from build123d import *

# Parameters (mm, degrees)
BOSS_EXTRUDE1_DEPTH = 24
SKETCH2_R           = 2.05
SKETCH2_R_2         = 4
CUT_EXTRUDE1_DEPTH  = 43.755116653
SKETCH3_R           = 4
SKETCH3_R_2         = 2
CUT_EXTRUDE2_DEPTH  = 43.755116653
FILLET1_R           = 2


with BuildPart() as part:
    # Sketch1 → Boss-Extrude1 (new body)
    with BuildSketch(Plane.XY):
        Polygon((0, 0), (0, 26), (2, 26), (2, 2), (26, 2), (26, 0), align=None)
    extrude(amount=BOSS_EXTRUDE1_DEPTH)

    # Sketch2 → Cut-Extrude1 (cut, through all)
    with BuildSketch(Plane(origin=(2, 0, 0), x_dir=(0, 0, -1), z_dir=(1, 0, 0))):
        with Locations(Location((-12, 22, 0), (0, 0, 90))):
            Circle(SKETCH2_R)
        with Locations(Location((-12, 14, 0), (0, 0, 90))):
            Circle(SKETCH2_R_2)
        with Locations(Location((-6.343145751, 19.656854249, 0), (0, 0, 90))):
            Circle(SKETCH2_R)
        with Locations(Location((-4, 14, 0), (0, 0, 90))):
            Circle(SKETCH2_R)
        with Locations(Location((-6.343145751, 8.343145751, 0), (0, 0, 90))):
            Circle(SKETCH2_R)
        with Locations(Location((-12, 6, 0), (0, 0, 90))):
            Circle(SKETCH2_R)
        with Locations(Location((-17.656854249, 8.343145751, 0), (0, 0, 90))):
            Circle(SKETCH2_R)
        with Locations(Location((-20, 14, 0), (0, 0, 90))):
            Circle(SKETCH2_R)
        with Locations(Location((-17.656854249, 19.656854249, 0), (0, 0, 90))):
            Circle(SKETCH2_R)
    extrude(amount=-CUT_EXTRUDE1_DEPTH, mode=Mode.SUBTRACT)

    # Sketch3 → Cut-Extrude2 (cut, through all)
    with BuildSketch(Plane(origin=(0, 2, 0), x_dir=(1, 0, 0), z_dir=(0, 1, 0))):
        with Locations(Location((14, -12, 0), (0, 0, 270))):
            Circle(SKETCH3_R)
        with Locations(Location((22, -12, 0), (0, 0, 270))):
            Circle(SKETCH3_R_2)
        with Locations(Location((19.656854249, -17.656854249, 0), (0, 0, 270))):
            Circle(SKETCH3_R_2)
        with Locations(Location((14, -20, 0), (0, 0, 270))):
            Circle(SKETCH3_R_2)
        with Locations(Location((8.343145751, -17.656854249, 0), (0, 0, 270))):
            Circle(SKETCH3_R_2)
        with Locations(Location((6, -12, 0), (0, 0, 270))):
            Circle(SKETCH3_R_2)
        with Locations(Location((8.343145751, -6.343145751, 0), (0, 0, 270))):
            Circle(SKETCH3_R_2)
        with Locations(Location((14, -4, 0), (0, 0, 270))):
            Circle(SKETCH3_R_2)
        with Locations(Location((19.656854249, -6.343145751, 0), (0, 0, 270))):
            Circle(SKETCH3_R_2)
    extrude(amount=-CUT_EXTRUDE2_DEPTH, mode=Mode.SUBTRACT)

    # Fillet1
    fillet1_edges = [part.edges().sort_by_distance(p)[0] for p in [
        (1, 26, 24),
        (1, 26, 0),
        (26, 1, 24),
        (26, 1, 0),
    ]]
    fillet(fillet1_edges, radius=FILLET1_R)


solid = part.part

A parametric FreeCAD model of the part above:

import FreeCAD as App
import Part
import Sketcher


def edges_at(feature, points):
    """Names of the edges that pass closest to the given points."""
    edges = feature.Shape.Edges
    near = lambda p: min(range(len(edges)), key=lambda i: edges[i].distToShape(Part.Vertex(*p))[0])
    return sorted({f"Edge{near(p) + 1}" for p in points})

doc = App.newDocument("Part")
body = doc.addObject("PartDesign::Body", "Body")

sketch1 = body.newObject("Sketcher::SketchObject", "Sketch")
sketch1.AttachmentSupport = (doc.getObject("XY_Plane"), [""])
sketch1.MapMode = "FlatFace"
sketch1.addGeometry(Part.LineSegment(App.Vector(0, 26, 0), App.Vector(0, 0, 0)), False)
sketch1.addGeometry(Part.LineSegment(App.Vector(0, 0, 0), App.Vector(26, 0, 0)), False)
sketch1.addGeometry(Part.LineSegment(App.Vector(26, 0, 0), App.Vector(26, 2, 0)), False)
sketch1.addGeometry(Part.LineSegment(App.Vector(26, 2, 0), App.Vector(2, 2, 0)), False)
sketch1.addGeometry(Part.LineSegment(App.Vector(2, 2, 0), App.Vector(2, 26, 0)), False)
sketch1.addGeometry(Part.LineSegment(App.Vector(2, 26, 0), App.Vector(0, 26, 0)), False)
sketch1.addConstraint(Sketcher.Constraint("Coincident", 0, 2, 1, 1))
sketch1.addConstraint(Sketcher.Constraint("Coincident", 1, 2, 2, 1))
sketch1.addConstraint(Sketcher.Constraint("Coincident", 2, 2, 3, 1))
sketch1.addConstraint(Sketcher.Constraint("Coincident", 3, 2, 4, 1))
sketch1.addConstraint(Sketcher.Constraint("Coincident", 4, 2, 5, 1))
sketch1.addConstraint(Sketcher.Constraint("Coincident", 5, 2, 0, 1))
sketch1.addConstraint(Sketcher.Constraint("Vertical", 0))
sketch1.addConstraint(Sketcher.Constraint("Horizontal", 1))
sketch1.addConstraint(Sketcher.Constraint("Vertical", 2))
sketch1.addConstraint(Sketcher.Constraint("Horizontal", 3))
sketch1.addConstraint(Sketcher.Constraint("Vertical", 4))
sketch1.addConstraint(Sketcher.Constraint("Horizontal", 5))
sketch1.addConstraint(Sketcher.Constraint("Coincident", 0, 2, -1, 1))
sketch1.addConstraint(Sketcher.Constraint("Equal", 1, 0))
sketch1.addConstraint(Sketcher.Constraint("Equal", 5, 2))
sketch1.addConstraint(Sketcher.Constraint("DistanceX", 1, 1, 1, 2, 26.0))
sketch1.addConstraint(Sketcher.Constraint("DistanceX", 3, 2, 3, 1, 24.0))
pad1 = body.newObject("PartDesign::Pad", "Pad")
pad1.Profile = sketch1
pad1.Length = 24

sketch2 = body.newObject("Sketcher::SketchObject", "Sketch001")
sketch2.AttachmentSupport = (doc.getObject("YZ_Plane"), [""])
sketch2.MapMode = "FlatFace"
sketch2.AttachmentOffset = App.Placement(App.Vector(0, 0, 2), App.Rotation())
sketch2.addGeometry(Part.Circle(App.Vector(22, 12, 0), App.Vector(0, 0, 1), 2.05), False)
sketch2.addGeometry(Part.Circle(App.Vector(14, 12, 0), App.Vector(0, 0, 1), 4), False)
sketch2.addGeometry(Part.Circle(App.Vector(19.656854, 6.343146, 0), App.Vector(0, 0, 1), 2.05), False)
sketch2.addGeometry(Part.Circle(App.Vector(14, 4, 0), App.Vector(0, 0, 1), 2.05), False)
sketch2.addGeometry(Part.Circle(App.Vector(8.343146, 6.343146, 0), App.Vector(0, 0, 1), 2.05), False)
sketch2.addGeometry(Part.Circle(App.Vector(6, 12, 0), App.Vector(0, 0, 1), 2.05), False)
sketch2.addGeometry(Part.Circle(App.Vector(8.343146, 17.656854, 0), App.Vector(0, 0, 1), 2.05), False)
sketch2.addGeometry(Part.Circle(App.Vector(14, 20, 0), App.Vector(0, 0, 1), 2.05), False)
sketch2.addGeometry(Part.Circle(App.Vector(19.656854, 17.656854, 0), App.Vector(0, 0, 1), 2.05), False)
sketch2.addConstraint(Sketcher.Constraint("Equal", 0, 2))
sketch2.addConstraint(Sketcher.Constraint("Equal", 2, 3))
sketch2.addConstraint(Sketcher.Constraint("Equal", 3, 4))
sketch2.addConstraint(Sketcher.Constraint("Equal", 4, 5))
sketch2.addConstraint(Sketcher.Constraint("Equal", 5, 6))
sketch2.addConstraint(Sketcher.Constraint("Equal", 6, 7))
sketch2.addConstraint(Sketcher.Constraint("Equal", 7, 8))
sketch2.addConstraint(Sketcher.Constraint("Horizontal", 0, 3, 1, 3))
sketch2.addConstraint(Sketcher.Constraint("Horizontal", 2, 3, 4, 3))
sketch2.addConstraint(Sketcher.Constraint("Horizontal", 1, 3, 5, 3))
sketch2.addConstraint(Sketcher.Constraint("Horizontal", 6, 3, 8, 3))
sketch2.addConstraint(Sketcher.Constraint("Vertical", 1, 3, 3, 3))
sketch2.addConstraint(Sketcher.Constraint("Vertical", 4, 3, 6, 3))
sketch2.addConstraint(Sketcher.Constraint("Vertical", 3, 3, 7, 3))
sketch2.addConstraint(Sketcher.Constraint("Vertical", 2, 3, 8, 3))
sketch2.addConstraint(Sketcher.Constraint("Diameter", 1, 8.0))
sketch2.addConstraint(Sketcher.Constraint("Diameter", 0, 4.1))
sketch2.addConstraint(Sketcher.Constraint("DistanceX", -1, 1, 0, 3, 22.0))
sketch2.addConstraint(Sketcher.Constraint("DistanceY", -1, 1, 0, 3, 12.0))
sketch2.addConstraint(Sketcher.Constraint("DistanceX", -1, 1, 1, 3, 14.0))
sketch2.addConstraint(Sketcher.Constraint("DistanceY", -1, 1, 3, 3, 4.0))
sketch2.addConstraint(Sketcher.Constraint("DistanceX", -1, 1, 5, 3, 6.0))
sketch2.addConstraint(Sketcher.Constraint("DistanceY", -1, 1, 7, 3, 20.0))
sketch2.addConstraint(Sketcher.Constraint("DistanceX", 4, 3, 2, 3, 11.313708))
sketch2.addConstraint(Sketcher.Constraint("DistanceY", 4, 3, 6, 3, 11.313708))
sketch2.addConstraint(Sketcher.Constraint("DistanceX", -1, 1, 2, 3, 19.656854))
sketch2.addConstraint(Sketcher.Constraint("DistanceY", -1, 1, 2, 3, 6.343146))
pocket1 = body.newObject("PartDesign::Pocket", "Pocket")
pocket1.Profile = sketch2
pocket1.Type = "ThroughAll"

sketch3 = body.newObject("Sketcher::SketchObject", "Sketch002")
sketch3.AttachmentSupport = (doc.getObject("XZ_Plane"), [""])
sketch3.MapMode = "FlatFace"
sketch3.AttachmentOffset = App.Placement(App.Vector(0, 0, -2), App.Rotation())
sketch3.addGeometry(Part.Circle(App.Vector(14, 12, 0), App.Vector(0, 0, 1), 4), False)
sketch3.addGeometry(Part.Circle(App.Vector(22, 12, 0), App.Vector(0, 0, 1), 2), False)
sketch3.addGeometry(Part.Circle(App.Vector(19.656854, 17.656854, 0), App.Vector(0, 0, 1), 2), False)
sketch3.addGeometry(Part.Circle(App.Vector(14, 20, 0), App.Vector(0, 0, 1), 2), False)
sketch3.addGeometry(Part.Circle(App.Vector(8.343146, 17.656854, 0), App.Vector(0, 0, 1), 2), False)
sketch3.addGeometry(Part.Circle(App.Vector(6, 12, 0), App.Vector(0, 0, 1), 2), False)
sketch3.addGeometry(Part.Circle(App.Vector(8.343146, 6.343146, 0), App.Vector(0, 0, 1), 2), False)
sketch3.addGeometry(Part.Circle(App.Vector(14, 4, 0), App.Vector(0, 0, 1), 2), False)
sketch3.addGeometry(Part.Circle(App.Vector(19.656854, 6.343146, 0), App.Vector(0, 0, 1), 2), False)
sketch3.addConstraint(Sketcher.Constraint("Equal", 1, 2))
sketch3.addConstraint(Sketcher.Constraint("Equal", 2, 3))
sketch3.addConstraint(Sketcher.Constraint("Equal", 3, 4))
sketch3.addConstraint(Sketcher.Constraint("Equal", 4, 5))
sketch3.addConstraint(Sketcher.Constraint("Equal", 5, 6))
sketch3.addConstraint(Sketcher.Constraint("Equal", 6, 7))
sketch3.addConstraint(Sketcher.Constraint("Equal", 7, 8))
sketch3.addConstraint(Sketcher.Constraint("Horizontal", 0, 3, 1, 3))
sketch3.addConstraint(Sketcher.Constraint("Horizontal", 2, 3, 4, 3))
sketch3.addConstraint(Sketcher.Constraint("Horizontal", 1, 3, 5, 3))
sketch3.addConstraint(Sketcher.Constraint("Horizontal", 6, 3, 8, 3))
sketch3.addConstraint(Sketcher.Constraint("Vertical", 0, 3, 3, 3))
sketch3.addConstraint(Sketcher.Constraint("Vertical", 4, 3, 6, 3))
sketch3.addConstraint(Sketcher.Constraint("Vertical", 3, 3, 7, 3))
sketch3.addConstraint(Sketcher.Constraint("Vertical", 2, 3, 8, 3))
sketch3.addConstraint(Sketcher.Constraint("Diameter", 0, 8.0))
sketch3.addConstraint(Sketcher.Constraint("Diameter", 1, 4.0))
sketch3.addConstraint(Sketcher.Constraint("DistanceX", -1, 1, 0, 3, 14.0))
sketch3.addConstraint(Sketcher.Constraint("DistanceY", -1, 1, 0, 3, 12.0))
sketch3.addConstraint(Sketcher.Constraint("DistanceX", -1, 1, 1, 3, 22.0))
sketch3.addConstraint(Sketcher.Constraint("DistanceY", -1, 1, 3, 3, 20.0))
sketch3.addConstraint(Sketcher.Constraint("DistanceX", -1, 1, 5, 3, 6.0))
sketch3.addConstraint(Sketcher.Constraint("DistanceY", -1, 1, 7, 3, 4.0))
sketch3.addConstraint(Sketcher.Constraint("DistanceX", 4, 3, 2, 3, 11.313708))
sketch3.addConstraint(Sketcher.Constraint("DistanceY", 6, 3, 4, 3, 11.313708))
sketch3.addConstraint(Sketcher.Constraint("DistanceX", -1, 1, 2, 3, 19.656854))
sketch3.addConstraint(Sketcher.Constraint("DistanceY", -1, 1, 2, 3, 17.656854))
pocket2 = body.newObject("PartDesign::Pocket", "Pocket001")
pocket2.Profile = sketch3
pocket2.Type = "ThroughAll"
pocket2.Reversed = True
doc.recompute()

fillet = body.newObject("PartDesign::Fillet", "Fillet")
fillet.Base = (pocket2, edges_at(pocket2, [
    (1, 26, 24),
    (1, 26, 0),
    (26, 1, 24),
    (26, 1, 0),
]))
fillet.Radius = 2

doc.recompute()
